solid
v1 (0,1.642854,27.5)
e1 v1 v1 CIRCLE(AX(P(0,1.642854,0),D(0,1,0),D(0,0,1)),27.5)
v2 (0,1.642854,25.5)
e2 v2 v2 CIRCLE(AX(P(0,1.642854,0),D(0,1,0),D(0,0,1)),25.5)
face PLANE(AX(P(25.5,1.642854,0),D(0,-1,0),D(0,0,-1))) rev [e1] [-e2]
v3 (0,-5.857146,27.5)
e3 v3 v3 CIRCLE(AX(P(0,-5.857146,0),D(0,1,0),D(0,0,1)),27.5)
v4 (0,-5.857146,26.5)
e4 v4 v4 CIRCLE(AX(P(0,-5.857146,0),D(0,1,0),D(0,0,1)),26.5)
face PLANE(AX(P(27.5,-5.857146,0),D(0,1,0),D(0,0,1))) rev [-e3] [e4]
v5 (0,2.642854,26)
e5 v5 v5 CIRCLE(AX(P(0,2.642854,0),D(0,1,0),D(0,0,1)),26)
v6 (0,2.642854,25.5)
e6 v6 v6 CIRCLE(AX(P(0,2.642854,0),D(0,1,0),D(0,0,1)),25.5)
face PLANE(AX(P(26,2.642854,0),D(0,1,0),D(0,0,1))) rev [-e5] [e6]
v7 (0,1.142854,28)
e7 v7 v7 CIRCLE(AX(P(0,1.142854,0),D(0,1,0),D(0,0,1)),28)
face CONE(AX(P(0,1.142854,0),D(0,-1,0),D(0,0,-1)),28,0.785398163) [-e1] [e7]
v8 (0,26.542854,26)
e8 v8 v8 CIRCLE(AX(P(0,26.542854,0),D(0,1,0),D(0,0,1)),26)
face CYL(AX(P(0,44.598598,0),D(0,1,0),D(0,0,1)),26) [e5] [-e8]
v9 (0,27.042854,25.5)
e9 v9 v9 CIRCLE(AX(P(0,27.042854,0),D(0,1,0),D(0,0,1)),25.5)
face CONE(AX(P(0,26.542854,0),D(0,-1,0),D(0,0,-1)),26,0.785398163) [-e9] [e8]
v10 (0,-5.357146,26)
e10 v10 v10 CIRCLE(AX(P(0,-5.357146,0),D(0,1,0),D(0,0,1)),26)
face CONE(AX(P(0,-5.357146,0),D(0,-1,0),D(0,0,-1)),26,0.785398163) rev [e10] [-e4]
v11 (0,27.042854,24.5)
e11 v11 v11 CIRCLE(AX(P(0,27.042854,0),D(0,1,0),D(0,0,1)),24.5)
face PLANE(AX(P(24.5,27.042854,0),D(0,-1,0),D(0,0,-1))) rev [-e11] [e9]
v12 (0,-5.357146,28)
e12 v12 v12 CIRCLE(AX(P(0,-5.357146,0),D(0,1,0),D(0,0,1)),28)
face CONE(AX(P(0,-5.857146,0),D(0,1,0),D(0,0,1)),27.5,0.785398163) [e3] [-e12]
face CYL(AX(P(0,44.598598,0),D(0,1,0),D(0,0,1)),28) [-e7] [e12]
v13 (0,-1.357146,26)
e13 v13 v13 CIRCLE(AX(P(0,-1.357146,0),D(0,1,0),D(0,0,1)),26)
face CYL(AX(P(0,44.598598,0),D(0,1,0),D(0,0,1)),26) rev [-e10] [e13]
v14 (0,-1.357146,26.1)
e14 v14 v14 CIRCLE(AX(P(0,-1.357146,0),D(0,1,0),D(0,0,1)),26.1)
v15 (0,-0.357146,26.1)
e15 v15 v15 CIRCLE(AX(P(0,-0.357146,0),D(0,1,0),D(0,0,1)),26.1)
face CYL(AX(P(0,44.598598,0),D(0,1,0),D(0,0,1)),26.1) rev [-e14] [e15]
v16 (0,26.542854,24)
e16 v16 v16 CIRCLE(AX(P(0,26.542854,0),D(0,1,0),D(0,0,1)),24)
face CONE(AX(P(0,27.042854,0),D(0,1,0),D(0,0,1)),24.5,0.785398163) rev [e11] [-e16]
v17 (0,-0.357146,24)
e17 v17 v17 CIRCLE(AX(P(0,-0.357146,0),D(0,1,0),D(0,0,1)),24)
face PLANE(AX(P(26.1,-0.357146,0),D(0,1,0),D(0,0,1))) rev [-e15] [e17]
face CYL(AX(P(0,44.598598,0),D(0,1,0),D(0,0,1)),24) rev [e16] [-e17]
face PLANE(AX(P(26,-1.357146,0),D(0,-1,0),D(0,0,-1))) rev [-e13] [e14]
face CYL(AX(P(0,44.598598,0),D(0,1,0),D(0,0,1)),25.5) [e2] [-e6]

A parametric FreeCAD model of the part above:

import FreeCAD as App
import Part
import Sketcher

V = App.Vector

doc = App.newDocument("Part")
params = doc.addObject("Spreadsheet::Sheet", "Params")
for row, (alias, value) in enumerate([
    ("sketch1_width", "1 mm"),
    ("sketch1_width2", "2 mm"),
    ("sketch1_height", "4 mm"),
    ("sketch1_width3", "2.1 mm"),
    ("sketch1_height2", "26.9 mm"),
    ("revolution_angle", "360 deg"),
], start=1):
    params.set(f"A{row}", alias)
    params.set(f"B{row}", "=" + value)
    params.setAlias(f"B{row}", alias)

body = doc.addObject("PartDesign::Body", "Body")

sketch1 = body.newObject("Sketcher::SketchObject", "Sketch")
sketch1.AttachmentSupport = (doc.getObject("XY_Plane"), [""])
sketch1.MapMode = "FlatFace"
sketch1.addGeometry([
    Part.LineSegment(V(25.5, 27.04, 0), V(24.5, 27.04, 0)),
    Part.LineSegment(V(24.5, 27.04, 0), V(24, 26.54, 0)),
    Part.LineSegment(V(24, 26.54, 0), V(24, -0.36, 0)),
    Part.LineSegment(V(24, -0.36, 0), V(26.1, -0.36, 0)),
    Part.LineSegment(V(26.1, -0.36, 0), V(26.1, -1.36, 0)),
    Part.LineSegment(V(26.1, -1.36, 0), V(26, -1.36, 0)),
    Part.LineSegment(V(26, -1.36, 0), V(26, -5.36, 0)),
    Part.LineSegment(V(26, -5.36, 0), V(26.5, -5.86, 0)),
    Part.LineSegment(V(26.5, -5.86, 0), V(27.5, -5.86, 0)),
    Part.LineSegment(V(27.5, -5.86, 0), V(28, -5.36, 0)),
    Part.LineSegment(V(28, -5.36, 0), V(28, 1.14, 0)),
    Part.LineSegment(V(28, 1.14, 0), V(27.5, 1.64, 0)),
    Part.LineSegment(V(27.5, 1.64, 0), V(25.5, 1.64, 0)),
    Part.LineSegment(V(25.5, 1.64, 0), V(25.5, 2.64, 0)),
    Part.LineSegment(V(25.5, 2.64, 0), V(26, 2.64, 0)),
    Part.LineSegment(V(26, 2.64, 0), V(26, 26.54, 0)),
    Part.LineSegment(V(26, 26.54, 0), V(25.5, 27.04, 0)),
], False)
sketch1.addConstraint([
    Sketcher.Constraint("Coincident", 0, 2, 1, 1),
    Sketcher.Constraint("Coincident", 1, 2, 2, 1),
    Sketcher.Constraint("Coincident", 2, 2, 3, 1),
    Sketcher.Constraint("Coincident", 3, 2, 4, 1),
    Sketcher.Constraint("Coincident", 4, 2, 5, 1),
    Sketcher.Constraint("Coincident", 5, 2, 6, 1),
    Sketcher.Constraint("Coincident", 6, 2, 7, 1),
    Sketcher.Constraint("Coincident", 7, 2, 8, 1),
    Sketcher.Constraint("Coincident", 8, 2, 9, 1),
    Sketcher.Constraint("Coincident", 9, 2, 10, 1),
    Sketcher.Constraint("Coincident", 10, 2, 11, 1),
    Sketcher.Constraint("Coincident", 11, 2, 12, 1),
    Sketcher.Constraint("Coincident", 12, 2, 13, 1),
    Sketcher.Constraint("Coincident", 13, 2, 14, 1),
    Sketcher.Constraint("Coincident", 14, 2, 15, 1),
    Sketcher.Constraint("Coincident", 15, 2, 16, 1),
    Sketcher.Constraint("Coincident", 16, 2, 0, 1),
    Sketcher.Constraint("Horizontal", 0),
    Sketcher.Constraint("Vertical", 2),
    Sketcher.Constraint("Horizontal", 3),
    Sketcher.Constraint("Vertical", 4),
    Sketcher.Constraint("Horizontal", 5),
    Sketcher.Constraint("Vertical", 6),
    Sketcher.Constraint("Horizontal", 8),
    Sketcher.Constraint("Vertical", 10),
    Sketcher.Constraint("Horizontal", 12),
    Sketcher.Constraint("Vertical", 13),
    Sketcher.Constraint("Horizontal", 14),
    Sketcher.Constraint("Vertical", 15),
    Sketcher.Constraint("Perpendicular", 1, 7),
    Sketcher.Constraint("Perpendicular", 7, 9),
    Sketcher.Constraint("Perpendicular", 9, 11),
    Sketcher.Constraint("Parallel", 11, 16),
    Sketcher.Constraint("Horizontal", 6, 2, 9, 2),
    Sketcher.Constraint("Horizontal", 1, 2, 15, 2),
    Sketcher.Constraint("Vertical", 8, 2, 11, 2),
    Sketcher.Constraint("Vertical", 6, 2, 14, 2),
    Sketcher.Constraint("Vertical", 13, 2, 16, 2),
    Sketcher.Constraint("Equal", 0, 8),
    Sketcher.Constraint("Equal", 8, 4),
    Sketcher.Constraint("Equal", 4, 13),
    Sketcher.Constraint("Equal", 1, 7),
    Sketcher.Constraint("Equal", 7, 9),
    Sketcher.Constraint("DistanceX", 0, 2, 0, 1, 1.0),
    Sketcher.Constraint("DistanceX", 12, 2, 12, 1, 2.0),
    Sketcher.Constraint("DistanceY", 6, 2, 6, 1, 4.0),
    Sketcher.Constraint("DistanceX", 3, 1, 3, 2, 2.1),
    Sketcher.Constraint("DistanceY", 2, 2, 2, 1, 26.9),
    Sketcher.Constraint("DistanceY", 10, 1, 10, 2, 6.5),
    Sketcher.Constraint("DistanceX", -1, 1, 1, 2, 24.0),
    Sketcher.Constraint("DistanceY", -1, 1, 0, 2, 27.042854),
])
sketch1.setExpression("Constraints[43]", "Params.sketch1_width")
sketch1.setExpression("Constraints[44]", "Params.sketch1_width2")
sketch1.setExpression("Constraints[45]", "Params.sketch1_height")
sketch1.setExpression("Constraints[46]", "Params.sketch1_width3")
sketch1.setExpression("Constraints[47]", "Params.sketch1_height2")
revolution = body.newObject("PartDesign::Revolution", "Revolution")
revolution.Profile = sketch1
revolution.ReferenceAxis = (sketch1, ["V_Axis"])
revolution.setExpression("Angle", "Params.revolution_angle")

doc.recompute()
